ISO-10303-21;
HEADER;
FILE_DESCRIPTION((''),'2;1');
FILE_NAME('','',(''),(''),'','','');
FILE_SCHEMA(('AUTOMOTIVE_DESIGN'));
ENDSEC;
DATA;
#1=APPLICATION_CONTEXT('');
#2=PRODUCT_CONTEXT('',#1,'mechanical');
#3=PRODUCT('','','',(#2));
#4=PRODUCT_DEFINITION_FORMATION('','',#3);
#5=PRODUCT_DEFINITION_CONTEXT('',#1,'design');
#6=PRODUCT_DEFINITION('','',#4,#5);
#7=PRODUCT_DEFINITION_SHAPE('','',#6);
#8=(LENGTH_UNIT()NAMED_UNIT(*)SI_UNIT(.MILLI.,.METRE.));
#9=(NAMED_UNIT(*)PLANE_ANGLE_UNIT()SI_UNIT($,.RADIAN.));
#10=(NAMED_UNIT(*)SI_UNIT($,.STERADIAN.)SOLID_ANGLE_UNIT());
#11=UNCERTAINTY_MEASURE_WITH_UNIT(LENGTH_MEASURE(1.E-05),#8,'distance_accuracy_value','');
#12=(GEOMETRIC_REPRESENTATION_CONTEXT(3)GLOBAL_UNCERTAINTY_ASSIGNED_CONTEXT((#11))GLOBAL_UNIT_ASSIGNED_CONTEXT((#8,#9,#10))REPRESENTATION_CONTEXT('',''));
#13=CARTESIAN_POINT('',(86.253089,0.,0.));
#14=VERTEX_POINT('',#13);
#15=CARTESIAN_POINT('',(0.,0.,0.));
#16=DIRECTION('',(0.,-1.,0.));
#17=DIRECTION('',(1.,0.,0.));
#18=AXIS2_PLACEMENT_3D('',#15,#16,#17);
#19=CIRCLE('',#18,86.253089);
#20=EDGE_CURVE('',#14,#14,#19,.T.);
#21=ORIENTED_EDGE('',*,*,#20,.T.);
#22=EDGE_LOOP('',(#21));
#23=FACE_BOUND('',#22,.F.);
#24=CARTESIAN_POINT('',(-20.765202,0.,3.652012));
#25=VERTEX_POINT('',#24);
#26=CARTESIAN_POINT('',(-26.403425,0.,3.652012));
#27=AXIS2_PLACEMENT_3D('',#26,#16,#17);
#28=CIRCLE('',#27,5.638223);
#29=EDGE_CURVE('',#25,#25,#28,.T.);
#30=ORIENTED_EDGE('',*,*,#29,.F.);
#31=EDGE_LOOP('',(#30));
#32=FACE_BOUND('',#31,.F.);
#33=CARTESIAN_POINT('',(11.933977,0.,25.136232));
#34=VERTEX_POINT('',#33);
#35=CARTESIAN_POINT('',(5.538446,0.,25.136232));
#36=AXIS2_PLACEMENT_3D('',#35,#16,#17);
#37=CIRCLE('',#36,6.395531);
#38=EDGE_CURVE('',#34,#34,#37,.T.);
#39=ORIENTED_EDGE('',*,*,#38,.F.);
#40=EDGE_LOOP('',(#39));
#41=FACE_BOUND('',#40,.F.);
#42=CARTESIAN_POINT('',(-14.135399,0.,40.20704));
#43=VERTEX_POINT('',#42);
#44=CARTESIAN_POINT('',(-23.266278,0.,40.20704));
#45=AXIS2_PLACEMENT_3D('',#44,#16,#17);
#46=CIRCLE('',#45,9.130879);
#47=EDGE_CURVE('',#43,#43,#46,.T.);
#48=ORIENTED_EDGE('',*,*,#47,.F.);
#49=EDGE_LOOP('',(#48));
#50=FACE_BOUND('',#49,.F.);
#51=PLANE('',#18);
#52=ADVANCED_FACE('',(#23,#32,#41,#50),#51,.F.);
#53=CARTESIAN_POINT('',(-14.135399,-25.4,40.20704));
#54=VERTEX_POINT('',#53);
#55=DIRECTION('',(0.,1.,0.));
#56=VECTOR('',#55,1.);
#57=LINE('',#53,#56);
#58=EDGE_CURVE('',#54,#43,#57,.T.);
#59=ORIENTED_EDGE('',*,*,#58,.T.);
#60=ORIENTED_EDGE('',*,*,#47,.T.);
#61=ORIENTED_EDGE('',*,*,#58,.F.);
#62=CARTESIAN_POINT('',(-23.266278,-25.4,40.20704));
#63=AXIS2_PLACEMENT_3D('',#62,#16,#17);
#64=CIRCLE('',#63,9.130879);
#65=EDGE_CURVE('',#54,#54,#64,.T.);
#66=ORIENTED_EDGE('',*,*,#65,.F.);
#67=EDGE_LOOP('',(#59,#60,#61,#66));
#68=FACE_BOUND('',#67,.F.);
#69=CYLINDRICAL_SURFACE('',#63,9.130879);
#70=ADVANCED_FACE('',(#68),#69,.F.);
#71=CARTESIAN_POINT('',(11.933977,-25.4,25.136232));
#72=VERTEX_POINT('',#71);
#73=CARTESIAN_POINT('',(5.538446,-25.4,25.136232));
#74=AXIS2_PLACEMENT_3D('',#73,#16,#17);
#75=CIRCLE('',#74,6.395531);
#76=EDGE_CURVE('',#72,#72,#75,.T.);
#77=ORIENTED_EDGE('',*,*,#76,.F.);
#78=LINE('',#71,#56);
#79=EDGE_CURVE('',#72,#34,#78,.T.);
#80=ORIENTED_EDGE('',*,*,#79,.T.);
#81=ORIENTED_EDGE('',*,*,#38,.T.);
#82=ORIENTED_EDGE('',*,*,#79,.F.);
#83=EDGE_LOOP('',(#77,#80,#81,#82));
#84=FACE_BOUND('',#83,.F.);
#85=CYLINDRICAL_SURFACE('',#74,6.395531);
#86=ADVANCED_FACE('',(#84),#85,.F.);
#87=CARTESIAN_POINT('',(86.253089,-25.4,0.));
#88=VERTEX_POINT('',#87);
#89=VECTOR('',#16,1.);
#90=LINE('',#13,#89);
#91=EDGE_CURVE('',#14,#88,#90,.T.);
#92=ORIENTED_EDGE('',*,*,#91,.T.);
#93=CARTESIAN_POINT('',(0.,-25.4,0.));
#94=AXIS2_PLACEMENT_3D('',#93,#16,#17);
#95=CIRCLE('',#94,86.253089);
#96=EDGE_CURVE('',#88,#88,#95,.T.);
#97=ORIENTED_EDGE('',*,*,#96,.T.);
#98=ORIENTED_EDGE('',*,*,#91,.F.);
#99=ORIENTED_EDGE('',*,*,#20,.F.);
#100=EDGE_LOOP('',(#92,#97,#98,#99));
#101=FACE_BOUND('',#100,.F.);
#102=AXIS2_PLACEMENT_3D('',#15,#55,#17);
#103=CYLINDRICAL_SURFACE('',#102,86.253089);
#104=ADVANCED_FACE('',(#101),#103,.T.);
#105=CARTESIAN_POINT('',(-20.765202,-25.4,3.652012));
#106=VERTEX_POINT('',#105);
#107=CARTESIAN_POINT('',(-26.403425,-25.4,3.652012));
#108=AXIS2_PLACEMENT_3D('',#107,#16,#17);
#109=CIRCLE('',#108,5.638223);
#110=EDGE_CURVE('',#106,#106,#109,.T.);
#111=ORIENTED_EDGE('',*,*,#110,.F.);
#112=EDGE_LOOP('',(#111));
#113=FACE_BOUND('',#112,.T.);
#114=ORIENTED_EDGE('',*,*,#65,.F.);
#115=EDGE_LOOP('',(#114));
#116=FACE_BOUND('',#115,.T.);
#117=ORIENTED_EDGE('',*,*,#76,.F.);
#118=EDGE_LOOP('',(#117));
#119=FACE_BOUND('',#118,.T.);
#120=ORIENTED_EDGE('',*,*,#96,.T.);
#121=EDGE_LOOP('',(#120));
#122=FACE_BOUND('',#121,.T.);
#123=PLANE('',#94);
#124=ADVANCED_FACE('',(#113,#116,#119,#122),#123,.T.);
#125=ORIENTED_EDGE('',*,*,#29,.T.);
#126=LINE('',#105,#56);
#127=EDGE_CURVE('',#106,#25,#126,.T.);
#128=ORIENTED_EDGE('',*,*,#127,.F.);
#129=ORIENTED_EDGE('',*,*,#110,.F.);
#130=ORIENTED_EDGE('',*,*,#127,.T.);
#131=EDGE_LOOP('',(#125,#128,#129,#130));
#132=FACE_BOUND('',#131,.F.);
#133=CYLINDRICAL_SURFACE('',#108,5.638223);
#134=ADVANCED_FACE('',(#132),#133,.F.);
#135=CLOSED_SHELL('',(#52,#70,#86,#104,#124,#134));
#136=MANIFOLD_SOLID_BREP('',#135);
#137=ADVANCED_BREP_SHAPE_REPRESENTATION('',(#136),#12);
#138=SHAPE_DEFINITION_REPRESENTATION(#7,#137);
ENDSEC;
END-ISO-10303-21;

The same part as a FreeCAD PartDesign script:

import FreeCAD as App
import Part
import Sketcher
Q = App.Units.Quantity

doc = App.newDocument("Part")
body = doc.addObject("PartDesign::Body", "Body")

# Sketch on XZ plane
sketch1 = doc.addObject("Sketcher::SketchObject", "Sketch")
body.addObject(sketch1)
sketch1.AttachmentSupport = (doc.XZ_Plane, [""])
sketch1.MapMode = "FlatFace"
sketch1.addGeometry(Part.Circle(App.Vector(0, 0, 0), App.Vector(0, 0, 1), 86), False)
sketch1.addConstraint(Sketcher.Constraint("Coincident", 0, 3, -1, 1))
sketch1.addConstraint(Sketcher.Constraint("Diameter", 0, 172.506178))
pad1 = doc.addObject("PartDesign::Pad", "Pad")
body.addObject(pad1)
pad1.Profile = sketch1
pad1.Length = Q("1 in")

# Sketch on XZ plane
sketch2 = doc.addObject("Sketcher::SketchObject", "Sketch001")
body.addObject(sketch2)
sketch2.AttachmentSupport = (doc.XZ_Plane, [""])
sketch2.MapMode = "FlatFace"
sketch2.AttachmentOffset = App.Placement(App.Vector(0, 0, 1 * 25.4), App.Rotation())
sketch2.addGeometry(Part.Circle(App.Vector(-26, 4, 0), App.Vector(0, 0, 1), 6), False)
sketch2.addGeometry(Part.Circle(App.Vector(-23, 40, 0), App.Vector(0, 0, 1), 9), False)
sketch2.addGeometry(Part.Circle(App.Vector(6, 25, 0), App.Vector(0, 0, 1), 6), False)
sketch2.addConstraint(Sketcher.Constraint("Diameter", 1, 18.261758))
sketch2.addConstraint(Sketcher.Constraint("Diameter", 0, 11.276446))
sketch2.addConstraint(Sketcher.Constraint("Diameter", 2, 12.791062))
sketch2.addConstraint(Sketcher.Constraint("DistanceY", -1, 1, 0, 3, 3.652012))
sketch2.addConstraint(Sketcher.Constraint("DistanceX", 1, 3, -1, 1, 23.266278))
sketch2.addConstraint(Sketcher.Constraint("DistanceY", -1, 1, 1, 3, 40.20704))
sketch2.addConstraint(Sketcher.Constraint("DistanceY", -1, 1, 2, 3, 25.136232))
sketch2.addConstraint(Sketcher.Constraint("DistanceX", 0, 3, 2, 3, 31.941871))
sketch2.addConstraint(Sketcher.Constraint("DistanceX", 0, 3, -1, 1, 26.403425))
pocket1 = doc.addObject("PartDesign::Pocket", "Pocket")
body.addObject(pocket1)
pocket1.Profile = sketch2
pocket1.Type = "ThroughAll"

doc.recompute()
